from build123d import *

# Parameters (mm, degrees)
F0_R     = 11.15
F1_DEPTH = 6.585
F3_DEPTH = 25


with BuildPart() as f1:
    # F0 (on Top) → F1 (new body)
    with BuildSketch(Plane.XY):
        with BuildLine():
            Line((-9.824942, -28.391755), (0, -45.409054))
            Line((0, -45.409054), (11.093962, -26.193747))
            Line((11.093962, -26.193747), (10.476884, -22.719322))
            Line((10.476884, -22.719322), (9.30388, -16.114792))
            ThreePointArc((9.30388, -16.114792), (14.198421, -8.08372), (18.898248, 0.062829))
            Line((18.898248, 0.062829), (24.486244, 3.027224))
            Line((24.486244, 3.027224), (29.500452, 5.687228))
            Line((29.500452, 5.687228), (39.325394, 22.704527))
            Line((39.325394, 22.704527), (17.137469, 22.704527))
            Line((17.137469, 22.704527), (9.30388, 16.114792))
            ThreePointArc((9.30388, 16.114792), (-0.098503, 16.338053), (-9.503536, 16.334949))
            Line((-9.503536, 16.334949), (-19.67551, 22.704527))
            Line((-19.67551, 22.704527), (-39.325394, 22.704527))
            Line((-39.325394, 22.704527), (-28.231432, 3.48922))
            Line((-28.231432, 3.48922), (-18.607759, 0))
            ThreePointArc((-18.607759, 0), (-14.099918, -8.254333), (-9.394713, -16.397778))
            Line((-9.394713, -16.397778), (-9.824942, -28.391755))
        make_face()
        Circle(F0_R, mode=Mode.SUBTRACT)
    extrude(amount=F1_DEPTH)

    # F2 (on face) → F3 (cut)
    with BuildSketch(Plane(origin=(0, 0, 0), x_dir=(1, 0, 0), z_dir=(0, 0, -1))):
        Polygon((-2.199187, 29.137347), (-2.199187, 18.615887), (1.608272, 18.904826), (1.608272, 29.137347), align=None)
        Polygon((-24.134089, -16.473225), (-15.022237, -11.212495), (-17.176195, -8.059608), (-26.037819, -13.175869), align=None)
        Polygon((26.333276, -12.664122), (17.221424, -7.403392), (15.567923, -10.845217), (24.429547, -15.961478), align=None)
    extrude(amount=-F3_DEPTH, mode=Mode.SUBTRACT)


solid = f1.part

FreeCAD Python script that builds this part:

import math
import FreeCAD as App
import Part
import Sketcher
Q = App.Units.Quantity

doc = App.newDocument("Part")
body = doc.addObject("PartDesign::Body", "Body")

# Sketch on XY plane
sketch1 = doc.addObject("Sketcher::SketchObject", "Sketch")
body.addObject(sketch1)
sketch1.AttachmentSupport = (doc.XY_Plane, [""])
sketch1.MapMode = "FlatFace"
sketch1.addGeometry(Part.LineSegment(App.Vector(-9.8, -28.4, 0), App.Vector(0, -45.4, 0)), False)
sketch1.addGeometry(Part.LineSegment(App.Vector(0, -45.4, 0), App.Vector(11.1, -26.2, 0)), False)
sketch1.addGeometry(Part.LineSegment(App.Vector(11.1, -26.2, 0), App.Vector(10.5, -22.7, 0)), False)
sketch1.addGeometry(Part.LineSegment(App.Vector(10.5, -22.7, 0), App.Vector(9.3, -16.1, 0)), False)
sketch1.addGeometry(Part.ArcOfCircle(Part.Circle(App.Vector(-321.9, 191.2, 0), App.Vector(0, 0, 1), 390.7), math.radians(-32.05), math.radians(-29.29)), False)
sketch1.addGeometry(Part.LineSegment(App.Vector(18.9, 0.1, 0), App.Vector(24.5, 3, 0)), False)
sketch1.addGeometry(Part.LineSegment(App.Vector(24.5, 3, 0), App.Vector(29.5, 5.7, 0)), False)
sketch1.addGeometry(Part.LineSegment(App.Vector(29.5, 5.7, 0), App.Vector(39.3, 22.7, 0)), False)
sketch1.addGeometry(Part.LineSegment(App.Vector(39.3, 22.7, 0), App.Vector(17.1, 22.7, 0)), False)
sketch1.addGeometry(Part.LineSegment(App.Vector(17.1, 22.7, 0), App.Vector(9.3, 16.1, 0)), False)
sketch1.addGeometry(Part.ArcOfCircle(Part.Circle(App.Vector(-4.7, -374.4, 0), App.Vector(0, 0, 1), 390.7), math.radians(87.95), math.radians(90.71)), False)
sketch1.addGeometry(Part.LineSegment(App.Vector(-9.5, 16.3, 0), App.Vector(-19.7, 22.7, 0)), False)
sketch1.addGeometry(Part.LineSegment(App.Vector(-19.7, 22.7, 0), App.Vector(-39.3, 22.7, 0)), False)
sketch1.addGeometry(Part.LineSegment(App.Vector(-39.3, 22.7, 0), App.Vector(-28.2, 3.5, 0)), False)
sketch1.addGeometry(Part.LineSegment(App.Vector(-28.2, 3.5, 0), App.Vector(-18.6, 0, 0)), False)
sketch1.addGeometry(Part.ArcOfCircle(Part.Circle(App.Vector(326.5, 183.1, 0), App.Vector(0, 0, 1), 390.7), math.radians(-152.05), math.radians(-149.29)), False)
sketch1.addGeometry(Part.LineSegment(App.Vector(-9.4, -16.4, 0), App.Vector(-9.8, -28.4, 0)), False)
sketch1.addGeometry(Part.Circle(App.Vector(0, 0, 0), App.Vector(0, 0, 1), 11.2), False)
sketch1.addConstraint(Sketcher.Constraint("Coincident", 0, 2, 1, 1))
sketch1.addConstraint(Sketcher.Constraint("Coincident", 1, 2, 2, 1))
sketch1.addConstraint(Sketcher.Constraint("Coincident", 2, 2, 3, 1))
sketch1.addConstraint(Sketcher.Constraint("Coincident", 3, 2, 4, 1))
sketch1.addConstraint(Sketcher.Constraint("Coincident", 4, 2, 5, 1))
sketch1.addConstraint(Sketcher.Constraint("Coincident", 5, 2, 6, 1))
sketch1.addConstraint(Sketcher.Constraint("Coincident", 6, 2, 7, 1))
sketch1.addConstraint(Sketcher.Constraint("Coincident", 7, 2, 8, 1))
sketch1.addConstraint(Sketcher.Constraint("Coincident", 8, 2, 9, 1))
sketch1.addConstraint(Sketcher.Constraint("Coincident", 9, 2, 10, 1))
sketch1.addConstraint(Sketcher.Constraint("Coincident", 10, 2, 11, 1))
sketch1.addConstraint(Sketcher.Constraint("Coincident", 11, 2, 12, 1))
sketch1.addConstraint(Sketcher.Constraint("Coincident", 12, 2, 13, 1))
sketch1.addConstraint(Sketcher.Constraint("Coincident", 13, 2, 14, 1))
sketch1.addConstraint(Sketcher.Constraint("Coincident", 14, 2, 15, 1))
sketch1.addConstraint(Sketcher.Constraint("Coincident", 15, 2, 16, 1))
sketch1.addConstraint(Sketcher.Constraint("Coincident", 16, 2, 0, 1))
sketch1.addConstraint(Sketcher.Constraint("Horizontal", 8))
sketch1.addConstraint(Sketcher.Constraint("Horizontal", 12))
sketch1.addConstraint(Sketcher.Constraint("Coincident", 17, 3, -1, 1))
sketch1.addConstraint(Sketcher.Constraint("Symmetric", 7, 2, 12, 2, -2))
sketch1.addConstraint(Sketcher.Constraint("Symmetric", 3, 2, 9, 2, -1))
sketch1.addConstraint(Sketcher.Constraint("PointOnObject", 0, 2, -2))
sketch1.addConstraint(Sketcher.Constraint("PointOnObject", 14, 2, -1))
sketch1.addConstraint(Sketcher.Constraint("Parallel", 2, 3))
sketch1.addConstraint(Sketcher.Constraint("Parallel", 5, 6))
sketch1.addConstraint(Sketcher.Constraint("Parallel", 1, 7))
sketch1.addConstraint(Sketcher.Constraint("Parallel", 0, 13))
sketch1.addConstraint(Sketcher.Constraint("Equal", 0, 7))
sketch1.addConstraint(Sketcher.Constraint("Equal", 1, 13))
sketch1.addConstraint(Sketcher.Constraint("Equal", 9, 14))
sketch1.addConstraint(Sketcher.Constraint("Equal", 11, 16))
sketch1.addConstraint(Sketcher.Constraint("Diameter", 17, Q("22.3 mm")))
sketch1.addConstraint(Sketcher.Constraint("Angle", 0, Q("-60 deg")))
sketch1.addConstraint(Sketcher.Constraint("Angle", 1, Q("60.000001 deg")))
sketch1.addConstraint(Sketcher.Constraint("Radius", 10, Q("390.734402 mm")))
sketch1.addConstraint(Sketcher.Constraint("Radius", 4, Q("390.73304 mm")))
sketch1.addConstraint(Sketcher.Constraint("Radius", 15, Q("390.732234 mm")))
sketch1.addConstraint(Sketcher.Constraint("DistanceX", 4, 3, 10, 3, Q("317.204299 mm")))
sketch1.addConstraint(Sketcher.Constraint("DistanceY", 4, 2, 6, 2, Q("5.624399 mm")))
sketch1.addConstraint(Sketcher.Constraint("DistanceY", 6, 2, 7, 2, Q("17.017299 mm")))
sketch1.addConstraint(Sketcher.Constraint("Distance", 5, Q("6.32561 mm")))
sketch1.addConstraint(Sketcher.Constraint("Distance", 6, Q("5.676082 mm")))
sketch1.addConstraint(Sketcher.Constraint("Distance", 11, Q("12.001691 mm")))
sketch1.addConstraint(Sketcher.Constraint("DistanceX", 8, 2, 8, 1, Q("22.187925 mm")))
sketch1.addConstraint(Sketcher.Constraint("DistanceX", 12, 2, 12, 1, Q("19.649884 mm")))
sketch1.addConstraint(Sketcher.Constraint("DistanceX", 4, 3, -1, 1, Q("321.876371 mm")))
sketch1.addConstraint(Sketcher.Constraint("DistanceY", -1, 1, 4, 3, Q("191.23021 mm")))
sketch1.addConstraint(Sketcher.Constraint("DistanceY", 10, 3, -1, 1, Q("374.369581 mm")))
sketch1.addConstraint(Sketcher.Constraint("DistanceY", 2, 2, -1, 1, Q("22.719322 mm")))
sketch1.addConstraint(Sketcher.Constraint("DistanceX", -1, 1, 6, 2, Q("29.500452 mm")))
sketch1.addConstraint(Sketcher.Constraint("DistanceY", -1, 1, 13, 2, Q("3.48922 mm")))
sketch1.addConstraint(Sketcher.Constraint("DistanceY", 1, 2, 15, 3, Q("209.331339 mm")))
sketch1.addConstraint(Sketcher.Constraint("DistanceY", 0, 2, 2, 2, Q("22.689732 mm")))
pad1 = doc.addObject("PartDesign::Pad", "Pad")
body.addObject(pad1)
pad1.Profile = sketch1
pad1.Length = 6.585

# Sketch on XY plane
sketch2 = doc.addObject("Sketcher::SketchObject", "Sketch001")
body.addObject(sketch2)
sketch2.AttachmentSupport = (doc.XY_Plane, [""])
sketch2.MapMode = "FlatFace"
sketch2.addGeometry(Part.LineSegment(App.Vector(-2.2, -29.1, 0), App.Vector(-2.2, -18.6, 0)), False)
sketch2.addGeometry(Part.LineSegment(App.Vector(-2.2, -18.6, 0), App.Vector(1.6, -18.9, 0)), False)
sketch2.addGeometry(Part.LineSegment(App.Vector(1.6, -18.9, 0), App.Vector(1.6, -29.1, 0)), False)
sketch2.addGeometry(Part.LineSegment(App.Vector(1.6, -29.1, 0), App.Vector(-2.2, -29.1, 0)), False)
sketch2.addGeometry(Part.LineSegment(App.Vector(-24.1, 16.5, 0), App.Vector(-15, 11.2, 0)), False)
sketch2.addGeometry(Part.LineSegment(App.Vector(-15, 11.2, 0), App.Vector(-17.2, 8.1, 0)), False)
sketch2.addGeometry(Part.LineSegment(App.Vector(-17.2, 8.1, 0), App.Vector(-26, 13.2, 0)), False)
sketch2.addGeometry(Part.LineSegment(App.Vector(-26, 13.2, 0), App.Vector(-24.1, 16.5, 0)), False)
sketch2.addGeometry(Part.LineSegment(App.Vector(26.3, 12.7, 0), App.Vector(17.2, 7.4, 0)), False)
sketch2.addGeometry(Part.LineSegment(App.Vector(17.2, 7.4, 0), App.Vector(15.6, 10.8, 0)), False)
sketch2.addGeometry(Part.LineSegment(App.Vector(15.6, 10.8, 0), App.Vector(24.4, 16, 0)), False)
sketch2.addGeometry(Part.LineSegment(App.Vector(24.4, 16, 0), App.Vector(26.3, 12.7, 0)), False)
sketch2.addConstraint(Sketcher.Constraint("Coincident", 0, 2, 1, 1))
sketch2.addConstraint(Sketcher.Constraint("Coincident", 1, 2, 2, 1))
sketch2.addConstraint(Sketcher.Constraint("Coincident", 2, 2, 3, 1))
sketch2.addConstraint(Sketcher.Constraint("Coincident", 3, 2, 0, 1))
sketch2.addConstraint(Sketcher.Constraint("Coincident", 4, 2, 5, 1))
sketch2.addConstraint(Sketcher.Constraint("Coincident", 5, 2, 6, 1))
sketch2.addConstraint(Sketcher.Constraint("Coincident", 6, 2, 7, 1))
sketch2.addConstraint(Sketcher.Constraint("Coincident", 7, 2, 4, 1))
sketch2.addConstraint(Sketcher.Constraint("Coincident", 8, 2, 9, 1))
sketch2.addConstraint(Sketcher.Constraint("Coincident", 9, 2, 10, 1))
sketch2.addConstraint(Sketcher.Constraint("Coincident", 10, 2, 11, 1))
sketch2.addConstraint(Sketcher.Constraint("Coincident", 11, 2, 8, 1))
sketch2.addConstraint(Sketcher.Constraint("Vertical", 0))
sketch2.addConstraint(Sketcher.Constraint("Vertical", 2))
sketch2.addConstraint(Sketcher.Constraint("Horizontal", 3))
sketch2.addConstraint(Sketcher.Constraint("Parallel", 4, 6))
sketch2.addConstraint(Sketcher.Constraint("Perpendicular", 6, 7))
sketch2.addConstraint(Sketcher.Constraint("Parallel", 8, 10))
sketch2.addConstraint(Sketcher.Constraint("Perpendicular", 10, 11))
sketch2.addConstraint(Sketcher.Constraint("Equal", 1, 5))
sketch2.addConstraint(Sketcher.Constraint("Equal", 4, 8))
sketch2.addConstraint(Sketcher.Constraint("Equal", 5, 9))
sketch2.addConstraint(Sketcher.Constraint("Equal", 6, 10))
sketch2.addConstraint(Sketcher.Constraint("Angle", 4, Q("-29.999999 deg")))
sketch2.addConstraint(Sketcher.Constraint("Angle", 8, Q("-150.000001 deg")))
sketch2.addConstraint(Sketcher.Constraint("DistanceX", 3, 2, 3, 1, Q("3.807459 mm")))
sketch2.addConstraint(Sketcher.Constraint("DistanceY", 0, 1, 0, 2, Q("10.52146 mm")))
sketch2.addConstraint(Sketcher.Constraint("DistanceY", 2, 2, 2, 1, Q("10.232521 mm")))
sketch2.addConstraint(Sketcher.Constraint("DistanceX", 9, 2, 8, 2, Q("1.653501 mm")))
sketch2.addConstraint(Sketcher.Constraint("Distance", 4, Q("10.52146 mm")))
sketch2.addConstraint(Sketcher.Constraint("DistanceX", -1, 1, 1, 2, Q("1.608272 mm")))
sketch2.addConstraint(Sketcher.Constraint("DistanceY", -1, 1, 5, 2, Q("8.059608 mm")))
sketch2.addConstraint(Sketcher.Constraint("DistanceX", 6, 2, -1, 1, Q("26.037819 mm")))
sketch2.addConstraint(Sketcher.Constraint("DistanceY", 1, 2, 4, 2, Q("30.117321 mm")))
sketch2.addConstraint(Sketcher.Constraint("DistanceY", 1, 2, 8, 2, Q("26.308218 mm")))
sketch2.addConstraint(Sketcher.Constraint("DistanceX", 4, 2, 8, 2, Q("32.243661 mm")))
pocket1 = doc.addObject("PartDesign::Pocket", "Pocket")
body.addObject(pocket1)
pocket1.Profile = sketch2
pocket1.Length = 25
pocket1.Reversed = True

doc.recompute()
